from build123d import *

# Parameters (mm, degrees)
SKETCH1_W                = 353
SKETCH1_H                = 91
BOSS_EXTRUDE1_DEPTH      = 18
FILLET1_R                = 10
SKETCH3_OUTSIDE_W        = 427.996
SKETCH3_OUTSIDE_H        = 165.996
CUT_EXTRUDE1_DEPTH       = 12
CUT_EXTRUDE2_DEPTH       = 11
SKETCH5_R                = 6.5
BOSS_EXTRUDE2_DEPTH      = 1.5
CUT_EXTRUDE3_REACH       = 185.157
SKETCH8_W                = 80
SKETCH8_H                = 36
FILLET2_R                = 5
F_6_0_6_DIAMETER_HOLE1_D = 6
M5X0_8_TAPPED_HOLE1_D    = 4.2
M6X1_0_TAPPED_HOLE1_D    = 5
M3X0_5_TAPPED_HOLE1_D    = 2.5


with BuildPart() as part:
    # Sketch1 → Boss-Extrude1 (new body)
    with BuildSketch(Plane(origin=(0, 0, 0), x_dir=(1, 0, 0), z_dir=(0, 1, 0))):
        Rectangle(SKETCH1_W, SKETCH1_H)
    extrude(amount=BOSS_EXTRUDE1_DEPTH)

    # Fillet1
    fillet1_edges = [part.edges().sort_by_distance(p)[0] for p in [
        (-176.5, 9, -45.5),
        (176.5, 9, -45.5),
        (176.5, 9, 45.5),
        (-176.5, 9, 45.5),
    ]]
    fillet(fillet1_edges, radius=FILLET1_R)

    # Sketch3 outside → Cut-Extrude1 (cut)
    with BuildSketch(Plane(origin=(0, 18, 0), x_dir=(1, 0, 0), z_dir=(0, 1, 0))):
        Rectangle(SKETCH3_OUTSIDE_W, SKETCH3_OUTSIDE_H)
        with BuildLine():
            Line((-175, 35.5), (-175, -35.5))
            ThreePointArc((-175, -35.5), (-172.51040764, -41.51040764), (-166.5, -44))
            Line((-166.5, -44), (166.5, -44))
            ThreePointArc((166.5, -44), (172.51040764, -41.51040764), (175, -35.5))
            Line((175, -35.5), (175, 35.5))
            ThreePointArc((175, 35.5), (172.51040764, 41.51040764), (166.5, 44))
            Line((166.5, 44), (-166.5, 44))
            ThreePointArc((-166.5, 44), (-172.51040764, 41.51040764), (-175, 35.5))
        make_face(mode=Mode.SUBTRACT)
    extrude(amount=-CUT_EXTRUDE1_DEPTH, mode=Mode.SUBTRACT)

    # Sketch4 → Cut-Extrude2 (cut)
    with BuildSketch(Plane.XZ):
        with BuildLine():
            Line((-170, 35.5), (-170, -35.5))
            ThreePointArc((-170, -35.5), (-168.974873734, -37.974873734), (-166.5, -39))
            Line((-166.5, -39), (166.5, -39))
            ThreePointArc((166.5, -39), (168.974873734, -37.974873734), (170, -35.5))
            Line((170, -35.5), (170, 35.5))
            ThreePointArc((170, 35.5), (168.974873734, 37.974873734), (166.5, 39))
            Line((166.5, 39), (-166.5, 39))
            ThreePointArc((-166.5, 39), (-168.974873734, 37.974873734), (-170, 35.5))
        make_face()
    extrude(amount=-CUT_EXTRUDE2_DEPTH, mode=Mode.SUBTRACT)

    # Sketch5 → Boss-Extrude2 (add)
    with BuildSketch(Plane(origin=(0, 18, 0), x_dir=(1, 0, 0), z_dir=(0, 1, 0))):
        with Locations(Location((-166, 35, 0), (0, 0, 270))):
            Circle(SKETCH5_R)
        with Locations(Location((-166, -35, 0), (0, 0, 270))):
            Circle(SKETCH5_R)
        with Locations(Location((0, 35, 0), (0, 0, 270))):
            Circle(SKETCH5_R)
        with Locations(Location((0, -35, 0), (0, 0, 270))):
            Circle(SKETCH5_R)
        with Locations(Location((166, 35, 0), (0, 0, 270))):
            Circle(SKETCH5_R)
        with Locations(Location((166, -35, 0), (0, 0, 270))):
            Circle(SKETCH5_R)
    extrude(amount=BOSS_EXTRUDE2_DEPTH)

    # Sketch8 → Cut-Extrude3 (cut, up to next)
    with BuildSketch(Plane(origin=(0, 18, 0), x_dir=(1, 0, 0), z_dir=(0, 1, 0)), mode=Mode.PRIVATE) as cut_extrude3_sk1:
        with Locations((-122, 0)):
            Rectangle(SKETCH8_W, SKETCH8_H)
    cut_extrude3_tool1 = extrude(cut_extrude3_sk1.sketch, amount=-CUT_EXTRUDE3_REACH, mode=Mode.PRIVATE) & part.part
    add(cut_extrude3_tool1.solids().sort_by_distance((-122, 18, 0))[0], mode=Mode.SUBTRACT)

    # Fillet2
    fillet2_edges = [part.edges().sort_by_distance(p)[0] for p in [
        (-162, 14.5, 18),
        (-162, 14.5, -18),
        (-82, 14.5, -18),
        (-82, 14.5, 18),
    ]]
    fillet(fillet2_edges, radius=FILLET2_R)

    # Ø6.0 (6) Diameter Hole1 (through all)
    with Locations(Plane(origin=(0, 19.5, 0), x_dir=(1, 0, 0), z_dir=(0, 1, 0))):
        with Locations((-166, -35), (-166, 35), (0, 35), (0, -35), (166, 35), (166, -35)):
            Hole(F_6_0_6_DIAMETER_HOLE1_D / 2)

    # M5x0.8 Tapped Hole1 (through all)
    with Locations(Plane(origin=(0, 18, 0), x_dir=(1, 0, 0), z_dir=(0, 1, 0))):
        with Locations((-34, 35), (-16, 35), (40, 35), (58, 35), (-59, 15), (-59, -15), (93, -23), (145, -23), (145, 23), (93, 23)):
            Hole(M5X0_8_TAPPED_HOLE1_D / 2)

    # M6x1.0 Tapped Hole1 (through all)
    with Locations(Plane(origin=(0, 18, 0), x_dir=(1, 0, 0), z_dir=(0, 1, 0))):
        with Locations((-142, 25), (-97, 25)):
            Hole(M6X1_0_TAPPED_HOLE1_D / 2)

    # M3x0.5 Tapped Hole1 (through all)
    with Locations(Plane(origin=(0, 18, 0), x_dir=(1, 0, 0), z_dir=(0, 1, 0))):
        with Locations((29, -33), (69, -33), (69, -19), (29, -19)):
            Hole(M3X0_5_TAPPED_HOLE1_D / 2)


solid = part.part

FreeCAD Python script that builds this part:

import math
import FreeCAD as App
import Part
import Sketcher

V = App.Vector
Q = App.Units.Quantity


def edges_at(feature, points):
    """Names of the edges that pass closest to the given points."""
    edges = feature.Shape.Edges
    near = lambda p: min(range(len(edges)), key=lambda i: edges[i].distToShape(Part.Vertex(*p))[0])
    return sorted({f"Edge{near(p) + 1}" for p in points})


def add_polygon(sketch, points):
    """Adds a closed chain of lines whose ends are joined by coincident constraints."""
    first, n = sketch.GeometryCount, len(points)
    for a, b in zip(points, points[1:] + points[:1]):
        sketch.addGeometry(Part.LineSegment(App.Vector(*a, 0), App.Vector(*b, 0)), False)
    for i in range(n):
        sketch.addConstraint(Sketcher.Constraint("Coincident", first + i, 2, first + (i + 1) % n, 1))

doc = App.newDocument("Part")
body = doc.addObject("PartDesign::Body", "Body")

sketch1 = body.newObject("Sketcher::SketchObject", "Sketch")
sketch1.AttachmentSupport = (doc.getObject("XZ_Plane"), [""])
sketch1.MapMode = "FlatFace"
add_polygon(sketch1, [(-176, -46), (-176, 46), (176, 46), (176, -46)])
sketch1.addConstraint(Sketcher.Constraint("Vertical", 0))
sketch1.addConstraint(Sketcher.Constraint("Horizontal", 1))
sketch1.addConstraint(Sketcher.Constraint("Vertical", 2))
sketch1.addConstraint(Sketcher.Constraint("Horizontal", 3))
sketch1.addConstraint(Sketcher.Constraint("Symmetric", 0, 2, 2, 2, -1, 1))
sketch1.addConstraint(Sketcher.Constraint("DistanceX", 1, 1, 1, 2, Q("353 mm")))
sketch1.addConstraint(Sketcher.Constraint("DistanceY", 0, 1, 0, 2, Q("91 mm")))
pad1 = body.newObject("PartDesign::Pad", "Pad")
pad1.Profile = sketch1
pad1.Length = 18
pad1.Reversed = True
doc.recompute()

fillet = body.newObject("PartDesign::Fillet", "Fillet")
fillet.Base = (pad1, edges_at(pad1, [
    (-176.5, 9, -45.5),
    (176.5, 9, -45.5),
    (176.5, 9, 45.5),
    (-176.5, 9, 45.5),
]))
fillet.Radius = 10

sketch2 = body.newObject("Sketcher::SketchObject", "Sketch001")
sketch2.AttachmentSupport = (doc.getObject("XZ_Plane"), [""])
sketch2.MapMode = "FlatFace"
sketch2.AttachmentOffset = App.Placement(V(0, 0, -18), App.Rotation())
add_polygon(sketch2, [(-214, -83), (-214, 83), (214, 83), (214, -83)])
sketch2.addGeometry(Part.LineSegment(V(-175, 36, 0), V(-175, -36, 0)), False)
sketch2.addGeometry(Part.ArcOfCircle(Part.Circle(V(-166, -36, 0), V(0, 0, 1), 8), math.radians(180), math.radians(270)), False)
sketch2.addGeometry(Part.LineSegment(V(-166, -44, 0), V(166, -44, 0)), False)
sketch2.addGeometry(Part.ArcOfCircle(Part.Circle(V(166, -36, 0), V(0, 0, 1), 8), math.radians(-90), math.radians(0)), False)
sketch2.addGeometry(Part.LineSegment(V(175, -36, 0), V(175, 36, 0)), False)
sketch2.addGeometry(Part.ArcOfCircle(Part.Circle(V(166, 36, 0), V(0, 0, 1), 8), math.radians(0), math.radians(90)), False)
sketch2.addGeometry(Part.LineSegment(V(166, 44, 0), V(-166, 44, 0)), False)
sketch2.addGeometry(Part.ArcOfCircle(Part.Circle(V(-166, 36, 0), V(0, 0, 1), 8), math.radians(90), math.radians(180)), False)
sketch2.addConstraint(Sketcher.Constraint("Tangent", 4, 2, 5, 1))
sketch2.addConstraint(Sketcher.Constraint("Tangent", 5, 2, 6, 1))
sketch2.addConstraint(Sketcher.Constraint("Tangent", 6, 2, 7, 1))
sketch2.addConstraint(Sketcher.Constraint("Tangent", 7, 2, 8, 1))
sketch2.addConstraint(Sketcher.Constraint("Tangent", 8, 2, 9, 1))
sketch2.addConstraint(Sketcher.Constraint("Tangent", 9, 2, 10, 1))
sketch2.addConstraint(Sketcher.Constraint("Tangent", 10, 2, 11, 1))
sketch2.addConstraint(Sketcher.Constraint("Tangent", 11, 2, 4, 1))
sketch2.addConstraint(Sketcher.Constraint("Vertical", 0))
sketch2.addConstraint(Sketcher.Constraint("Horizontal", 1))
sketch2.addConstraint(Sketcher.Constraint("Vertical", 2))
sketch2.addConstraint(Sketcher.Constraint("Horizontal", 3))
sketch2.addConstraint(Sketcher.Constraint("Vertical", 4))
sketch2.addConstraint(Sketcher.Constraint("Horizontal", 6))
sketch2.addConstraint(Sketcher.Constraint("Vertical", 8))
sketch2.addConstraint(Sketcher.Constraint("Horizontal", 10))
sketch2.addConstraint(Sketcher.Constraint("Equal", 5, 7))
sketch2.addConstraint(Sketcher.Constraint("Equal", 7, 9))
sketch2.addConstraint(Sketcher.Constraint("Equal", 9, 11))
sketch2.addConstraint(Sketcher.Constraint("Symmetric", 5, 3, 9, 3, -1, 1))
sketch2.addConstraint(Sketcher.Constraint("Symmetric", 0, 2, 2, 2, -1, 1))
sketch2.addConstraint(Sketcher.Constraint("Radius", 5, Q("8.5 mm")))
sketch2.addConstraint(Sketcher.Constraint("DistanceX", 6, 1, 6, 2, Q("333 mm")))
sketch2.addConstraint(Sketcher.Constraint("DistanceY", 4, 2, 4, 1, Q("71 mm")))
sketch2.addConstraint(Sketcher.Constraint("DistanceX", 1, 1, 1, 2, Q("427.996 mm")))
sketch2.addConstraint(Sketcher.Constraint("DistanceY", 0, 1, 0, 2, Q("165.996 mm")))
pocket1 = body.newObject("PartDesign::Pocket", "Pocket")
pocket1.Profile = sketch2
pocket1.Length = 12
pocket1.Reversed = True

sketch3 = body.newObject("Sketcher::SketchObject", "Sketch002")
sketch3.AttachmentSupport = (doc.getObject("XZ_Plane"), [""])
sketch3.MapMode = "FlatFace"
sketch3.addGeometry(Part.LineSegment(V(-170, 35.5, 0), V(-170, -35.5, 0)), False)
sketch3.addGeometry(Part.ArcOfCircle(Part.Circle(V(-166.5, -35.5, 0), V(0, 0, 1), 3.5), math.radians(-180), math.radians(-90)), False)
sketch3.addGeometry(Part.LineSegment(V(-166.5, -39, 0), V(166.5, -39, 0)), False)
sketch3.addGeometry(Part.ArcOfCircle(Part.Circle(V(166.5, -35.5, 0), V(0, 0, 1), 3.5), math.radians(-90), math.radians(0)), False)
sketch3.addGeometry(Part.LineSegment(V(170, -35.5, 0), V(170, 35.5, 0)), False)
sketch3.addGeometry(Part.ArcOfCircle(Part.Circle(V(166.5, 35.5, 0), V(0, 0, 1), 3.5), math.radians(0), math.radians(90)), False)
sketch3.addGeometry(Part.LineSegment(V(166.5, 39, 0), V(-166.5, 39, 0)), False)
sketch3.addGeometry(Part.ArcOfCircle(Part.Circle(V(-166.5, 35.5, 0), V(0, 0, 1), 3.5), math.radians(90), math.radians(180)), False)
sketch3.addConstraint(Sketcher.Constraint("Tangent", 0, 2, 1, 1))
sketch3.addConstraint(Sketcher.Constraint("Tangent", 1, 2, 2, 1))
sketch3.addConstraint(Sketcher.Constraint("Tangent", 2, 2, 3, 1))
sketch3.addConstraint(Sketcher.Constraint("Tangent", 3, 2, 4, 1))
sketch3.addConstraint(Sketcher.Constraint("Tangent", 4, 2, 5, 1))
sketch3.addConstraint(Sketcher.Constraint("Tangent", 5, 2, 6, 1))
sketch3.addConstraint(Sketcher.Constraint("Tangent", 6, 2, 7, 1))
sketch3.addConstraint(Sketcher.Constraint("Tangent", 7, 2, 0, 1))
sketch3.addConstraint(Sketcher.Constraint("Vertical", 0))
sketch3.addConstraint(Sketcher.Constraint("Horizontal", 2))
sketch3.addConstraint(Sketcher.Constraint("Vertical", 4))
sketch3.addConstraint(Sketcher.Constraint("Horizontal", 6))
sketch3.addConstraint(Sketcher.Constraint("Equal", 1, 3))
sketch3.addConstraint(Sketcher.Constraint("Equal", 3, 5))
sketch3.addConstraint(Sketcher.Constraint("Equal", 5, 7))
sketch3.addConstraint(Sketcher.Constraint("Symmetric", 1, 3, 5, 3, -1, 1))
sketch3.addConstraint(Sketcher.Constraint("Radius", 1, Q("3.5 mm")))
sketch3.addConstraint(Sketcher.Constraint("DistanceX", 2, 1, 2, 2, Q("333 mm")))
sketch3.addConstraint(Sketcher.Constraint("DistanceY", 0, 2, 0, 1, Q("71 mm")))
pocket2 = body.newObject("PartDesign::Pocket", "Pocket001")
pocket2.Profile = sketch3
pocket2.Length = 11

sketch4 = body.newObject("Sketcher::SketchObject", "Sketch003")
sketch4.AttachmentSupport = (doc.getObject("XZ_Plane"), [""])
sketch4.MapMode = "FlatFace"
sketch4.AttachmentOffset = App.Placement(V(0, 0, -18), App.Rotation())
sketch4.addGeometry(Part.Circle(V(-166, -35, 0), V(0, 0, 1), 6), False)
sketch4.addGeometry(Part.Circle(V(-166, 35, 0), V(0, 0, 1), 6), False)
sketch4.addGeometry(Part.Circle(V(0, -35, 0), V(0, 0, 1), 6), False)
sketch4.addGeometry(Part.Circle(V(0, 35, 0), V(0, 0, 1), 6), False)
sketch4.addGeometry(Part.Circle(V(166, -35, 0), V(0, 0, 1), 6), False)
sketch4.addGeometry(Part.Circle(V(166, 35, 0), V(0, 0, 1), 6), False)
sketch4.addConstraint(Sketcher.Constraint("Equal", 0, 1))
sketch4.addConstraint(Sketcher.Constraint("Equal", 1, 2))
sketch4.addConstraint(Sketcher.Constraint("Equal", 2, 3))
sketch4.addConstraint(Sketcher.Constraint("Equal", 3, 4))
sketch4.addConstraint(Sketcher.Constraint("Equal", 4, 5))
sketch4.addConstraint(Sketcher.Constraint("Symmetric", 2, 3, 3, 3, -1, 1))
sketch4.addConstraint(Sketcher.Constraint("Symmetric", 1, 3, 4, 3, -1, 1))
sketch4.addConstraint(Sketcher.Constraint("Symmetric", 0, 3, 5, 3, -1, 1))
sketch4.addConstraint(Sketcher.Constraint("Symmetric", 0, 3, 4, 3, -2))
sketch4.addConstraint(Sketcher.Constraint("PointOnObject", 2, 3, -2))
sketch4.addConstraint(Sketcher.Constraint("Horizontal", 0, 3, 2, 3))
sketch4.addConstraint(Sketcher.Constraint("Diameter", 0, Q("13 mm")))
sketch4.addConstraint(Sketcher.Constraint("DistanceX", 0, 3, -1, 1, Q("166 mm")))
sketch4.addConstraint(Sketcher.Constraint("DistanceY", 0, 3, -1, 1, Q("35 mm")))
pad2 = body.newObject("PartDesign::Pad", "Pad001")
pad2.Profile = sketch4
pad2.Length = 1.5
pad2.Reversed = True

sketch5 = body.newObject("Sketcher::SketchObject", "Sketch004")
sketch5.AttachmentSupport = (doc.getObject("XZ_Plane"), [""])
sketch5.MapMode = "FlatFace"
sketch5.AttachmentOffset = App.Placement(V(0, 0, -18), App.Rotation())
add_polygon(sketch5, [(-162, -18), (-162, 18), (-82, 18), (-82, -18)])
sketch5.addConstraint(Sketcher.Constraint("Vertical", 0))
sketch5.addConstraint(Sketcher.Constraint("Horizontal", 1))
sketch5.addConstraint(Sketcher.Constraint("Vertical", 2))
sketch5.addConstraint(Sketcher.Constraint("Horizontal", 3))
sketch5.addConstraint(Sketcher.Constraint("DistanceX", 1, 1, 1, 2, Q("80 mm")))
sketch5.addConstraint(Sketcher.Constraint("DistanceY", 0, 1, 0, 2, Q("36 mm")))
sketch5.addConstraint(Sketcher.Constraint("DistanceX", 0, 2, -1, 1, Q("162 mm")))
sketch5.addConstraint(Sketcher.Constraint("DistanceY", -1, 1, 0, 2, Q("18 mm")))
pocket3 = body.newObject("PartDesign::Pocket", "Pocket002")
pocket3.Profile = sketch5
pocket3.Type = "UpToFirst"
pocket3.Reversed = True
doc.recompute()

fillet2 = body.newObject("PartDesign::Fillet", "Fillet001")
fillet2.Base = (pocket3, edges_at(pocket3, [
    (-162, 14.5, 18),
    (-162, 14.5, -18),
    (-82, 14.5, -18),
    (-82, 14.5, 18),
]))
fillet2.Radius = 5

sketch6 = body.newObject("Sketcher::SketchObject", "Sketch005")
sketch6.AttachmentSupport = (doc.getObject("XZ_Plane"), [""])
sketch6.MapMode = "FlatFace"
sketch6.AttachmentOffset = App.Placement(V(0, 0, -19.5), App.Rotation())
sketch6.addGeometry(Part.Circle(V(-166, 35, 0), V(0, 0, 1), 3), False)
sketch6.addGeometry(Part.Circle(V(-166, -35, 0), V(0, 0, 1), 3), False)
sketch6.addGeometry(Part.Circle(V(0, -35, 0), V(0, 0, 1), 3), False)
sketch6.addGeometry(Part.Circle(V(0, 35, 0), V(0, 0, 1), 3), False)
sketch6.addGeometry(Part.Circle(V(166, -35, 0), V(0, 0, 1), 3), False)
sketch6.addGeometry(Part.Circle(V(166, 35, 0), V(0, 0, 1), 3), False)
sketch6.addConstraint(Sketcher.Constraint("Equal", 0, 1))
sketch6.addConstraint(Sketcher.Constraint("Equal", 1, 2))
sketch6.addConstraint(Sketcher.Constraint("Equal", 2, 3))
sketch6.addConstraint(Sketcher.Constraint("Equal", 3, 4))
sketch6.addConstraint(Sketcher.Constraint("Equal", 4, 5))
sketch6.addConstraint(Sketcher.Constraint("Symmetric", 2, 3, 3, 3, -1, 1))
sketch6.addConstraint(Sketcher.Constraint("Symmetric", 0, 3, 4, 3, -1, 1))
sketch6.addConstraint(Sketcher.Constraint("Symmetric", 1, 3, 5, 3, -1, 1))
sketch6.addConstraint(Sketcher.Constraint("Symmetric", 1, 3, 4, 3, -2))
sketch6.addConstraint(Sketcher.Constraint("PointOnObject", 2, 3, -2))
sketch6.addConstraint(Sketcher.Constraint("Horizontal", 1, 3, 2, 3))
sketch6.addConstraint(Sketcher.Constraint("Diameter", 0, Q("6 mm")))
sketch6.addConstraint(Sketcher.Constraint("DistanceX", 0, 3, -1, 1, Q("166 mm")))
sketch6.addConstraint(Sketcher.Constraint("DistanceY", -1, 1, 0, 3, Q("35 mm")))
doc.recompute()
hole = body.newObject("PartDesign::Hole", "Hole")
hole.Profile = sketch6
hole.ThreadType = "None"
hole.Diameter = 6
hole.DepthType = "ThroughAll"
hole.Reversed = True

sketch7 = body.newObject("Sketcher::SketchObject", "Sketch006")
sketch7.AttachmentSupport = (doc.getObject("XZ_Plane"), [""])
sketch7.MapMode = "FlatFace"
sketch7.AttachmentOffset = App.Placement(V(0, 0, -18), App.Rotation())
sketch7.addGeometry(Part.Circle(V(-34, -35, 0), V(0, 0, 1), 2.1), False)
sketch7.addGeometry(Part.Circle(V(-16, -35, 0), V(0, 0, 1), 2.1), False)
sketch7.addGeometry(Part.Circle(V(40, -35, 0), V(0, 0, 1), 2.1), False)
sketch7.addGeometry(Part.Circle(V(58, -35, 0), V(0, 0, 1), 2.1), False)
sketch7.addGeometry(Part.Circle(V(-59, -15, 0), V(0, 0, 1), 2.1), False)
sketch7.addGeometry(Part.Circle(V(-59, 15, 0), V(0, 0, 1), 2.1), False)
sketch7.addGeometry(Part.Circle(V(93, 23, 0), V(0, 0, 1), 2.1), False)
sketch7.addGeometry(Part.Circle(V(145, 23, 0), V(0, 0, 1), 2.1), False)
sketch7.addGeometry(Part.Circle(V(145, -23, 0), V(0, 0, 1), 2.1), False)
sketch7.addGeometry(Part.Circle(V(93, -23, 0), V(0, 0, 1), 2.1), False)
sketch7.addConstraint(Sketcher.Constraint("Equal", 0, 1))
sketch7.addConstraint(Sketcher.Constraint("Equal", 1, 2))
sketch7.addConstraint(Sketcher.Constraint("Equal", 2, 3))
sketch7.addConstraint(Sketcher.Constraint("Equal", 3, 4))
sketch7.addConstraint(Sketcher.Constraint("Equal", 4, 5))
sketch7.addConstraint(Sketcher.Constraint("Equal", 5, 6))
sketch7.addConstraint(Sketcher.Constraint("Equal", 6, 7))
sketch7.addConstraint(Sketcher.Constraint("Equal", 7, 8))
sketch7.addConstraint(Sketcher.Constraint("Equal", 8, 9))
sketch7.addConstraint(Sketcher.Constraint("Symmetric", 4, 3, 5, 3, -1))
sketch7.addConstraint(Sketcher.Constraint("Symmetric", 7, 3, 8, 3, -1))
sketch7.addConstraint(Sketcher.Constraint("Symmetric", 6, 3, 9, 3, -1))
sketch7.addConstraint(Sketcher.Constraint("Horizontal", 0, 3, 1, 3))
sketch7.addConstraint(Sketcher.Constraint("Horizontal", 1, 3, 2, 3))
sketch7.addConstraint(Sketcher.Constraint("Horizontal", 2, 3, 3, 3))
sketch7.addConstraint(Sketcher.Constraint("Horizontal", 6, 3, 7, 3))
sketch7.addConstraint(Sketcher.Constraint("Diameter", 0, Q("4.2 mm")))
sketch7.addConstraint(Sketcher.Constraint("DistanceX", 0, 3, -1, 1, Q("34 mm")))
sketch7.addConstraint(Sketcher.Constraint("DistanceY", 0, 3, -1, 1, Q("35 mm")))
sketch7.addConstraint(Sketcher.Constraint("DistanceX", 1, 3, -1, 1, Q("16 mm")))
sketch7.addConstraint(Sketcher.Constraint("DistanceX", -1, 1, 2, 3, Q("40 mm")))
sketch7.addConstraint(Sketcher.Constraint("DistanceX", -1, 1, 3, 3, Q("58 mm")))
sketch7.addConstraint(Sketcher.Constraint("DistanceX", 4, 3, -1, 1, Q("59 mm")))
sketch7.addConstraint(Sketcher.Constraint("DistanceY", 4, 3, -1, 1, Q("15 mm")))
sketch7.addConstraint(Sketcher.Constraint("DistanceX", -1, 1, 6, 3, Q("93 mm")))
sketch7.addConstraint(Sketcher.Constraint("DistanceY", -1, 1, 6, 3, Q("23 mm")))
sketch7.addConstraint(Sketcher.Constraint("DistanceX", -1, 1, 7, 3, Q("145 mm")))
doc.recompute()
hole2 = body.newObject("PartDesign::Hole", "Hole001")
hole2.Profile = sketch7
hole2.ThreadType = "None"
hole2.Diameter = 4.2
hole2.DepthType = "ThroughAll"
hole2.Reversed = True

sketch8 = body.newObject("Sketcher::SketchObject", "Sketch007")
sketch8.AttachmentSupport = (doc.getObject("XZ_Plane"), [""])
sketch8.MapMode = "FlatFace"
sketch8.AttachmentOffset = App.Placement(V(0, 0, -18), App.Rotation())
sketch8.addGeometry(Part.Circle(V(-142, -25, 0), V(0, 0, 1), 2.5), False)
sketch8.addGeometry(Part.Circle(V(-97, -25, 0), V(0, 0, 1), 2.5), False)
sketch8.addConstraint(Sketcher.Constraint("Equal", 0, 1))
sketch8.addConstraint(Sketcher.Constraint("Horizontal", 0, 3, 1, 3))
sketch8.addConstraint(Sketcher.Constraint("Diameter", 0, Q("5 mm")))
sketch8.addConstraint(Sketcher.Constraint("DistanceX", 0, 3, -1, 1, Q("142 mm")))
sketch8.addConstraint(Sketcher.Constraint("DistanceY", 0, 3, -1, 1, Q("25 mm")))
sketch8.addConstraint(Sketcher.Constraint("DistanceX", 1, 3, -1, 1, Q("97 mm")))
doc.recompute()
hole3 = body.newObject("PartDesign::Hole", "Hole002")
hole3.Profile = sketch8
hole3.ThreadType = "None"
hole3.Diameter = 5
hole3.DepthType = "ThroughAll"
hole3.Reversed = True

sketch9 = body.newObject("Sketcher::SketchObject", "Sketch008")
sketch9.AttachmentSupport = (doc.getObject("XZ_Plane"), [""])
sketch9.MapMode = "FlatFace"
sketch9.AttachmentOffset = App.Placement(V(0, 0, -18), App.Rotation())
sketch9.addGeometry(Part.Circle(V(29, 33, 0), V(0, 0, 1), 1.2), False)
sketch9.addGeometry(Part.Circle(V(69, 33, 0), V(0, 0, 1), 1.2), False)
sketch9.addGeometry(Part.Circle(V(69, 19, 0), V(0, 0, 1), 1.2), False)
sketch9.addGeometry(Part.Circle(V(29, 19, 0), V(0, 0, 1), 1.2), False)
sketch9.addConstraint(Sketcher.Constraint("Equal", 0, 1))
sketch9.addConstraint(Sketcher.Constraint("Equal", 1, 2))
sketch9.addConstraint(Sketcher.Constraint("Equal", 2, 3))
sketch9.addConstraint(Sketcher.Constraint("Horizontal", 0, 3, 1, 3))
sketch9.addConstraint(Sketcher.Constraint("Horizontal", 2, 3, 3, 3))
sketch9.addConstraint(Sketcher.Constraint("Vertical", 1, 3, 2, 3))
sketch9.addConstraint(Sketcher.Constraint("Vertical", 0, 3, 3, 3))
sketch9.addConstraint(Sketcher.Constraint("Diameter", 0, Q("2.5 mm")))
sketch9.addConstraint(Sketcher.Constraint("DistanceX", -1, 1, 0, 3, Q("29 mm")))
sketch9.addConstraint(Sketcher.Constraint("DistanceY", -1, 1, 0, 3, Q("33 mm")))
sketch9.addConstraint(Sketcher.Constraint("DistanceX", -1, 1, 1, 3, Q("69 mm")))
sketch9.addConstraint(Sketcher.Constraint("DistanceY", -1, 1, 2, 3, Q("19 mm")))
doc.recompute()
hole4 = body.newObject("PartDesign::Hole", "Hole003")
hole4.Profile = sketch9
hole4.ThreadType = "None"
hole4.Diameter = 2.5
hole4.DepthType = "ThroughAll"
hole4.Reversed = True

doc.recompute()
